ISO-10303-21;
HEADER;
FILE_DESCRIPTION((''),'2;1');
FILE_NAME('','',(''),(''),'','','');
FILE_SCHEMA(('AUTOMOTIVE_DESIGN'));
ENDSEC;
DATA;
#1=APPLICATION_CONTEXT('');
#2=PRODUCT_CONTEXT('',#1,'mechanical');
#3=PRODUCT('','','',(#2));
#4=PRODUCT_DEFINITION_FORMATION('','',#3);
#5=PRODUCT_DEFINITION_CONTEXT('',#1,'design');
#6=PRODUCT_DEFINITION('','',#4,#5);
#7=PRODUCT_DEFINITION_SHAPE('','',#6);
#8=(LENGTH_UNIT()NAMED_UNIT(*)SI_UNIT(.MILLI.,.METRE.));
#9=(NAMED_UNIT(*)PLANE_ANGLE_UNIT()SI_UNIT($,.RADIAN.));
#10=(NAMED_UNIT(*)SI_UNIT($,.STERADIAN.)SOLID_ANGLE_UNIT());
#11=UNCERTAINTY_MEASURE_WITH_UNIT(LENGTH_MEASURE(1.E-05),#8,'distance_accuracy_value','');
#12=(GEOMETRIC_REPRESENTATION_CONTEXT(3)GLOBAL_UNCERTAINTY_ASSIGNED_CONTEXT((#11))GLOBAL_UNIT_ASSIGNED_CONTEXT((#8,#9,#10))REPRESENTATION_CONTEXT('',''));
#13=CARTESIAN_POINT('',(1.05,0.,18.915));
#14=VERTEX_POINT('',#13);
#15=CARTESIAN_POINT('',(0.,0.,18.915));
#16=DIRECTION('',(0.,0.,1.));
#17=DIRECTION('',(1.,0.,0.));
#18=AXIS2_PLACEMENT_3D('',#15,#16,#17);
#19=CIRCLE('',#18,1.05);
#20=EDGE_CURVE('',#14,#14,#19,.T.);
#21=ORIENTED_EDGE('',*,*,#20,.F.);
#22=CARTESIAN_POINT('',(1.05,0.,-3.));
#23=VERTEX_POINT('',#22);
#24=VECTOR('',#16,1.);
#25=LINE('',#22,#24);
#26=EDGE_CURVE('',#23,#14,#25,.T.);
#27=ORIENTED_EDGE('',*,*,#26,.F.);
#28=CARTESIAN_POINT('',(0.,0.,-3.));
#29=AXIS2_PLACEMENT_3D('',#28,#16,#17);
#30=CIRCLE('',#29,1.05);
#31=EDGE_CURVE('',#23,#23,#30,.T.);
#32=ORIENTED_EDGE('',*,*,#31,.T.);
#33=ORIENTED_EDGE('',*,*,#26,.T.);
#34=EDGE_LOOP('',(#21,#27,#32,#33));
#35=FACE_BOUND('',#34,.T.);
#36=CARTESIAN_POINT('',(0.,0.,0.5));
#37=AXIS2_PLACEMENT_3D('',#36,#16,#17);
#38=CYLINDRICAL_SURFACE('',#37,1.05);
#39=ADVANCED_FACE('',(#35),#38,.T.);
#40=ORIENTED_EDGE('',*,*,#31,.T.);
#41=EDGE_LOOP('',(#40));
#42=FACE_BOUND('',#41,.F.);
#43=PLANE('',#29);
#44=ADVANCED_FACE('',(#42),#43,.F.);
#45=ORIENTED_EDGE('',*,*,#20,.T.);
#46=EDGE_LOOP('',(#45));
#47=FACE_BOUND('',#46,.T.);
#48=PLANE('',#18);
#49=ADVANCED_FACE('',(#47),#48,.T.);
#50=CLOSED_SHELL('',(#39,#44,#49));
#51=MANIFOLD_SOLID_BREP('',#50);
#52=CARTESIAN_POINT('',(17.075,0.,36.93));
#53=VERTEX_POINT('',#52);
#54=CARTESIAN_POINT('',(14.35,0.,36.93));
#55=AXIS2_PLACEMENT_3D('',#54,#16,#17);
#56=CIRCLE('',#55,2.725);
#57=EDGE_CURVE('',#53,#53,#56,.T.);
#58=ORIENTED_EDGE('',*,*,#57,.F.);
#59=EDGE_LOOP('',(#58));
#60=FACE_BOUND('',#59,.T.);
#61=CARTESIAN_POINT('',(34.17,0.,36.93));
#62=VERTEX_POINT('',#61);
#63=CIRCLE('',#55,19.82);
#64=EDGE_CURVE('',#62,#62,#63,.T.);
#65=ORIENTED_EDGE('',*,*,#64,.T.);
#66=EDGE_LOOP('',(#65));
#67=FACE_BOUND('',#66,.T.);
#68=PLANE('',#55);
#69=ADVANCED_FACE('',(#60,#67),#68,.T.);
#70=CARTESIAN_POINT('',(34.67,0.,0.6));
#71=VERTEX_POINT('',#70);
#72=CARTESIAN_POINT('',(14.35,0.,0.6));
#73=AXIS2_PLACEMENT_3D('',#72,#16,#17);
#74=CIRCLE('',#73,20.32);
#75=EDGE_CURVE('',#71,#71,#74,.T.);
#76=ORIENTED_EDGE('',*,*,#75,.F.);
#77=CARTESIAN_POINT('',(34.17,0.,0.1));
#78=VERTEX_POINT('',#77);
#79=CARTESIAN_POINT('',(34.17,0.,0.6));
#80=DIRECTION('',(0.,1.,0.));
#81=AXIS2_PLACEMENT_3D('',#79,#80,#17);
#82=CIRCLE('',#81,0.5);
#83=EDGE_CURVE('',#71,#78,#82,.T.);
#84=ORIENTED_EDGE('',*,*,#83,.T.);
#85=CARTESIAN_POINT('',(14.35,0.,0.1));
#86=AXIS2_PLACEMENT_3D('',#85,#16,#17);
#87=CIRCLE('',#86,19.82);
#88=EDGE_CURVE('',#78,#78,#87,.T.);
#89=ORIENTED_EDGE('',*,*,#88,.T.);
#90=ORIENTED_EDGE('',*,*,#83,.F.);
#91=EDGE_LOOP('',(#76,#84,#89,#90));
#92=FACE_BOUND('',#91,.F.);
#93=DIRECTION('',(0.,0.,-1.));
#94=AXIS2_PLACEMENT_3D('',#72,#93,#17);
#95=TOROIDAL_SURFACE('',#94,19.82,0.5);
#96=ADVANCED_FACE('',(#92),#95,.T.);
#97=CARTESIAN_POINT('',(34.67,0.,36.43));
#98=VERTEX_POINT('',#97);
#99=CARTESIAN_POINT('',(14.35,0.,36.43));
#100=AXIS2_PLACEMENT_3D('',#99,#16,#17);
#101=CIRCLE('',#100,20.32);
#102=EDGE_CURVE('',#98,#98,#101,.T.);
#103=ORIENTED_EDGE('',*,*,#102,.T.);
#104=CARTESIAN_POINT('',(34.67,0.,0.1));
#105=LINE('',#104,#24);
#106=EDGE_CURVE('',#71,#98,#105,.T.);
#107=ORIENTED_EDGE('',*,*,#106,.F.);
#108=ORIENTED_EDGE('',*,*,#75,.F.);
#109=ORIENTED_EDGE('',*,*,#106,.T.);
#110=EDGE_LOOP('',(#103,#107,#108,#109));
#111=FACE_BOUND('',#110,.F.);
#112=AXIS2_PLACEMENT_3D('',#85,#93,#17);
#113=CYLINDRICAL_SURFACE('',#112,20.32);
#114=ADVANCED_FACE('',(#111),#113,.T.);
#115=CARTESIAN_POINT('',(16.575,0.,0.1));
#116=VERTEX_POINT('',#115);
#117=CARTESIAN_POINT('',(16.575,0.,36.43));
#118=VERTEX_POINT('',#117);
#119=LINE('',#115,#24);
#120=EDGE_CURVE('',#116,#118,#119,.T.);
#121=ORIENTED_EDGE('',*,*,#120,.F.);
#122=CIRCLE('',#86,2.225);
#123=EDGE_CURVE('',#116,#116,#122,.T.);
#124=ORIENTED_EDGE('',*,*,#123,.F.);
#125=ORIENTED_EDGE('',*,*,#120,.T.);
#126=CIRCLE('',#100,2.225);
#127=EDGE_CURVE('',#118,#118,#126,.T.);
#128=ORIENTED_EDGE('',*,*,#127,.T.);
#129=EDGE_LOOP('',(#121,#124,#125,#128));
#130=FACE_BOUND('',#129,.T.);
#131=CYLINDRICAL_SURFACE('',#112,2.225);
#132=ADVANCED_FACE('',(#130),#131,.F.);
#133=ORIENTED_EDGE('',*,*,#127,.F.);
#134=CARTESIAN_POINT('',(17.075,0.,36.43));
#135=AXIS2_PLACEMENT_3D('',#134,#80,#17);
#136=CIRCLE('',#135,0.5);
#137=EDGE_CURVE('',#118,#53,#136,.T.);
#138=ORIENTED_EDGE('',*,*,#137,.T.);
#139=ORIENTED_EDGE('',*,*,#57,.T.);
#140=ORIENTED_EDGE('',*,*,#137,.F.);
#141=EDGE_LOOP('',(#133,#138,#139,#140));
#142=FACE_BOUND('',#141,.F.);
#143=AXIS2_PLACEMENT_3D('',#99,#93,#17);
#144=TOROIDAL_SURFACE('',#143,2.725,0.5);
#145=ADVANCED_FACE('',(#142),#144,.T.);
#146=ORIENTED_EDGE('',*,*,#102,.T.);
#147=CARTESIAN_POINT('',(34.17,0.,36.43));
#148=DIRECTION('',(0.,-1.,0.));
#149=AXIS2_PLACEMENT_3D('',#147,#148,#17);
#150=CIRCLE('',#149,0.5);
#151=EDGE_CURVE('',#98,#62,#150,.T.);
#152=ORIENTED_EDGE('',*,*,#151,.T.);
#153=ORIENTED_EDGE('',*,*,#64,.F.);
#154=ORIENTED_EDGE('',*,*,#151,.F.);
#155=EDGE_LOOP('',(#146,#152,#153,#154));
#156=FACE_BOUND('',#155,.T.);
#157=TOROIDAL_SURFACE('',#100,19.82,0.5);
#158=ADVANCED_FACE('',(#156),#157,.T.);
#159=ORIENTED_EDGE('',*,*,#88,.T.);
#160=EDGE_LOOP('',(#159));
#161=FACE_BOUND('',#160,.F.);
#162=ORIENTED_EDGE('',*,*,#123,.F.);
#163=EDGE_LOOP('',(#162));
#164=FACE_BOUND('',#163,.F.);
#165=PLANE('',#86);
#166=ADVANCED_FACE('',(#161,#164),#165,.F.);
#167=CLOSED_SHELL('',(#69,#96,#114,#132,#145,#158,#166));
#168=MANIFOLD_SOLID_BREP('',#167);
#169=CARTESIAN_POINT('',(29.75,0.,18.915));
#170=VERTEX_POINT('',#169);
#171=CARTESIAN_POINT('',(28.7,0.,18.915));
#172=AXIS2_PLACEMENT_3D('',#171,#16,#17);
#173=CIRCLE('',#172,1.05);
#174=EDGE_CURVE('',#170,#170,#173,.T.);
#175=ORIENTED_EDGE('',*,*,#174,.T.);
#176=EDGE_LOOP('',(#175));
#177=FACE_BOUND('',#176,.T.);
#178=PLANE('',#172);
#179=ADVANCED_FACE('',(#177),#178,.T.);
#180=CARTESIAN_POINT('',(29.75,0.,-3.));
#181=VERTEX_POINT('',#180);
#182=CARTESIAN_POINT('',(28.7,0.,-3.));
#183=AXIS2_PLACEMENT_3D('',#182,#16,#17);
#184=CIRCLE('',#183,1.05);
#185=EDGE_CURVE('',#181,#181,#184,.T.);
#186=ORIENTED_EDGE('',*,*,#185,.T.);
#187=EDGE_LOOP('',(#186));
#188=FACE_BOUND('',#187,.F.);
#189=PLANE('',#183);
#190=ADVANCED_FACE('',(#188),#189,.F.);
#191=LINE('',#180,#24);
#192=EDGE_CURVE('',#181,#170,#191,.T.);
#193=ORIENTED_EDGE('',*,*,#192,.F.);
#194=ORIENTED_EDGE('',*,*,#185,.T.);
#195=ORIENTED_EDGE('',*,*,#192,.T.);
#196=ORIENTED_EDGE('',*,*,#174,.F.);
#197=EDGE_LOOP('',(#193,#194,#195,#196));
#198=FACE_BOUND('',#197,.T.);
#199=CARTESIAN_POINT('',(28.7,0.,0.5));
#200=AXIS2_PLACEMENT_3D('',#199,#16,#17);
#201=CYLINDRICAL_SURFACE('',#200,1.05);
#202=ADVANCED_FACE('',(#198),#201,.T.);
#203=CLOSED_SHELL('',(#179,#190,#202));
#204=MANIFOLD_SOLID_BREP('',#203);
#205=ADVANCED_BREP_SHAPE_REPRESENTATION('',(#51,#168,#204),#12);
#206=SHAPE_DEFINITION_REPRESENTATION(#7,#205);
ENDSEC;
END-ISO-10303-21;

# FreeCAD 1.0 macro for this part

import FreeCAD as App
import Part
import Sketcher
Q = App.Units.Quantity


def edges_at(feature, points):
    """Names of the edges that pass closest to the given points."""
    edges = feature.Shape.Edges
    near = lambda p: min(range(len(edges)), key=lambda i: edges[i].distToShape(Part.Vertex(*p))[0])
    return sorted({f"Edge{near(p) + 1}" for p in points})

doc = App.newDocument("Part")
body = doc.addObject("PartDesign::Body", "Body")
body.AllowCompound = True

# Sketch on XY plane
sketch1 = body.newObject("Sketcher::SketchObject", "Sketch")
sketch1.AttachmentSupport = (doc.getObject("XY_Plane"), [""])
sketch1.MapMode = "FlatFace"
sketch1.AttachmentOffset = App.Placement(App.Vector(0, 0, 0.5), App.Rotation())
sketch1.addGeometry([
    Part.Circle(App.Vector(0, 0, 0), App.Vector(0, 0, 1), 1.1),
    Part.Circle(App.Vector(28.7, 0, 0), App.Vector(0, 0, 1), 1.1),
], False)
sketch1.addConstraint([
    Sketcher.Constraint("Coincident", 0, 3, -1, 1),
    Sketcher.Constraint("Equal", 0, 1),
    Sketcher.Constraint("PointOnObject", 1, 3, -1),
    Sketcher.Constraint("Diameter", 0, 2.1),
    Sketcher.Constraint("DistanceX", -1, 1, 1, 3, 28.7),
])
pad1 = body.newObject("PartDesign::Pad", "Pad")
pad1.Profile = sketch1
pad1.Type = "TwoLengths"
pad1.Length = Q("0.725 in")
pad1.Length2 = 3.5
body2 = doc.addObject("PartDesign::Body", "Body001")

# Sketch on XY plane
sketch2 = body2.newObject("Sketcher::SketchObject", "Sketch001")
sketch2.AttachmentSupport = (doc.getObject("XY_Plane001"), [""])
sketch2.MapMode = "FlatFace"
sketch2.AttachmentOffset = App.Placement(App.Vector(0, 0, 0.1), App.Rotation())
sketch2.addGeometry([
    Part.Circle(App.Vector(14.3, 0, 0), App.Vector(0, 0, 1), 20.3),
    Part.Circle(App.Vector(14.3, 0, 0), App.Vector(0, 0, 1), 2.2),
], False)
sketch2.addConstraint([
    Sketcher.Constraint("Coincident", 1, 3, 0, 3),
    Sketcher.Constraint("PointOnObject", 0, 3, -1),
    Sketcher.Constraint("Diameter", 0, Q("1.6 in")),
    Sketcher.Constraint("Diameter", 1, 4.45),
    Sketcher.Constraint("DistanceX", -1, 1, 0, 3, 14.35),
])
pad2 = body2.newObject("PartDesign::Pad", "Pad001")
pad2.Profile = sketch2
pad2.Length = Q("1.45 in")
doc.recompute()

fillet = body2.newObject("PartDesign::Fillet", "Fillet")
fillet.Base = (pad2, edges_at(pad2, [(12.125, 0, 36.93), (-5.97, 0, 36.93), (-5.97, 0, 0.1)]))
fillet.Radius = 0.5

doc.recompute()
